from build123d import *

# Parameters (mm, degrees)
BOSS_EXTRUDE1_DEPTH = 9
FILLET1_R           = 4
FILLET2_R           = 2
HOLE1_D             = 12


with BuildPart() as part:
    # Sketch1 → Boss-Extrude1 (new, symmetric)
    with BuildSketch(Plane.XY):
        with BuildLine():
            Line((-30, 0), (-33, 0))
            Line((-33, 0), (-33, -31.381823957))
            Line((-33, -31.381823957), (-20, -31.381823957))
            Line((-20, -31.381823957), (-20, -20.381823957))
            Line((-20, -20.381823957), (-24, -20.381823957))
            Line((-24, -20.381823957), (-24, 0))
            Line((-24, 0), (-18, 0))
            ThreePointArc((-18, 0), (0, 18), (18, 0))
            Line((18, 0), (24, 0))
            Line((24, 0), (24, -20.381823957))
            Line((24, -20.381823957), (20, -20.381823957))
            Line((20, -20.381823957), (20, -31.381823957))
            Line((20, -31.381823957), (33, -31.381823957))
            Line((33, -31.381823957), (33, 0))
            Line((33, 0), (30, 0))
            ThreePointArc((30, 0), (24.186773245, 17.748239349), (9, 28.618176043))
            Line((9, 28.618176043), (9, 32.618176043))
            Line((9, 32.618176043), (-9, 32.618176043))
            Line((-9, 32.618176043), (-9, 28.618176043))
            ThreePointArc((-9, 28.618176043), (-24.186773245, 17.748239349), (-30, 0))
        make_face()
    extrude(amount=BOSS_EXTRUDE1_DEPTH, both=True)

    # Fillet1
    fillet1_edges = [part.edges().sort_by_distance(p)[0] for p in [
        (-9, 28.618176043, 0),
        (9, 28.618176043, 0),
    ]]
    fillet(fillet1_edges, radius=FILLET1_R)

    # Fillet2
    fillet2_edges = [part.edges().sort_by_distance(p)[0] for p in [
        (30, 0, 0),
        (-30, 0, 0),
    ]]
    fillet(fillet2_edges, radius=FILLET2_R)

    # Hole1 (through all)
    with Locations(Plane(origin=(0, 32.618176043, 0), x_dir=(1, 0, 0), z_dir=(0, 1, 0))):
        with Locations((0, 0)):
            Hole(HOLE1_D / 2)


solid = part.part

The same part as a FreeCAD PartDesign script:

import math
import FreeCAD as App
import Part
import Sketcher
Q = App.Units.Quantity


def edges_at(feature, points):
    """Names of the edges that pass closest to the given points."""
    edges = feature.Shape.Edges
    near = lambda p: min(range(len(edges)), key=lambda i: edges[i].distToShape(Part.Vertex(*p))[0])
    return sorted({f"Edge{near(p) + 1}" for p in points})

doc = App.newDocument("Part")
params = doc.addObject("Spreadsheet::Sheet", "Params")
for row, (alias, value) in enumerate([
    ("sketch1_radius", "18 mm"),
    ("sketch1_radius2", "30 mm"),
    ("sketch1_width", "3 mm"),
    ("sketch1_width2", "13 mm"),
    ("sketch1_width3", "4 mm"),
    ("pad1_length", "18 mm"),
    ("fillet_radius", "4 mm"),
    ("fillet2_radius", "2 mm"),
    ("sketch2_diameter", "12 mm"),
    ("hole_diameter", "12 mm"),
], start=1):
    params.set(f"A{row}", alias)
    params.set(f"B{row}", "=" + value)
    params.setAlias(f"B{row}", alias)

body = doc.addObject("PartDesign::Body", "Body")

sketch1 = body.newObject("Sketcher::SketchObject", "Sketch")
sketch1.AttachmentSupport = (doc.getObject("XY_Plane"), [""])
sketch1.MapMode = "FlatFace"
sketch1.addGeometry([
    Part.LineSegment(App.Vector(-30, 0, 0), App.Vector(-33, 0, 0)),
    Part.LineSegment(App.Vector(-33, 0, 0), App.Vector(-33, -31.4, 0)),
    Part.LineSegment(App.Vector(-33, -31.4, 0), App.Vector(-20, -31.4, 0)),
    Part.LineSegment(App.Vector(-20, -31.4, 0), App.Vector(-20, -20.4, 0)),
    Part.LineSegment(App.Vector(-20, -20.4, 0), App.Vector(-24, -20.4, 0)),
    Part.LineSegment(App.Vector(-24, -20.4, 0), App.Vector(-24, 0, 0)),
    Part.LineSegment(App.Vector(-24, 0, 0), App.Vector(-18, 0, 0)),
    Part.ArcOfCircle(Part.Circle(App.Vector(0, 0, 0), App.Vector(0, 0, 1), 18), math.radians(0), math.radians(180)),
    Part.LineSegment(App.Vector(18, 0, 0), App.Vector(24, 0, 0)),
    Part.LineSegment(App.Vector(24, 0, 0), App.Vector(24, -20.4, 0)),
    Part.LineSegment(App.Vector(24, -20.4, 0), App.Vector(20, -20.4, 0)),
    Part.LineSegment(App.Vector(20, -20.4, 0), App.Vector(20, -31.4, 0)),
    Part.LineSegment(App.Vector(20, -31.4, 0), App.Vector(33, -31.4, 0)),
    Part.LineSegment(App.Vector(33, -31.4, 0), App.Vector(33, 0, 0)),
    Part.LineSegment(App.Vector(33, 0, 0), App.Vector(30, 0, 0)),
    Part.ArcOfCircle(Part.Circle(App.Vector(0, 0, 0), App.Vector(0, 0, 1), 30), math.radians(0), math.radians(73)),
    Part.LineSegment(App.Vector(9, 28.6, 0), App.Vector(9, 32.6, 0)),
    Part.LineSegment(App.Vector(9, 32.6, 0), App.Vector(-9, 32.6, 0)),
    Part.LineSegment(App.Vector(-9, 32.6, 0), App.Vector(-9, 28.6, 0)),
    Part.ArcOfCircle(Part.Circle(App.Vector(0, 0, 0), App.Vector(0, 0, 1), 30), math.radians(107), math.radians(180)),
], False)
sketch1.addConstraint([
    Sketcher.Constraint("Coincident", 0, 2, 1, 1),
    Sketcher.Constraint("Coincident", 1, 2, 2, 1),
    Sketcher.Constraint("Coincident", 2, 2, 3, 1),
    Sketcher.Constraint("Coincident", 3, 2, 4, 1),
    Sketcher.Constraint("Coincident", 4, 2, 5, 1),
    Sketcher.Constraint("Coincident", 5, 2, 6, 1),
    Sketcher.Constraint("Coincident", 6, 2, 7, 2),
    Sketcher.Constraint("Coincident", 7, 1, 8, 1),
    Sketcher.Constraint("Coincident", 8, 2, 9, 1),
    Sketcher.Constraint("Coincident", 9, 2, 10, 1),
    Sketcher.Constraint("Coincident", 10, 2, 11, 1),
    Sketcher.Constraint("Coincident", 11, 2, 12, 1),
    Sketcher.Constraint("Coincident", 12, 2, 13, 1),
    Sketcher.Constraint("Coincident", 13, 2, 14, 1),
    Sketcher.Constraint("Coincident", 14, 2, 15, 1),
    Sketcher.Constraint("Coincident", 15, 2, 16, 1),
    Sketcher.Constraint("Coincident", 16, 2, 17, 1),
    Sketcher.Constraint("Coincident", 17, 2, 18, 1),
    Sketcher.Constraint("Coincident", 18, 2, 19, 1),
    Sketcher.Constraint("Coincident", 19, 2, 0, 1),
    Sketcher.Constraint("Horizontal", 0),
    Sketcher.Constraint("Vertical", 1),
    Sketcher.Constraint("Horizontal", 2),
    Sketcher.Constraint("Vertical", 3),
    Sketcher.Constraint("Horizontal", 4),
    Sketcher.Constraint("Vertical", 5),
    Sketcher.Constraint("Horizontal", 6),
    Sketcher.Constraint("Horizontal", 8),
    Sketcher.Constraint("Vertical", 9),
    Sketcher.Constraint("Horizontal", 10),
    Sketcher.Constraint("Vertical", 11),
    Sketcher.Constraint("Horizontal", 12),
    Sketcher.Constraint("Vertical", 13),
    Sketcher.Constraint("Horizontal", 14),
    Sketcher.Constraint("Vertical", 16),
    Sketcher.Constraint("Horizontal", 17),
    Sketcher.Constraint("Vertical", 18),
    Sketcher.Constraint("Coincident", 7, 3, -1, 1),
    Sketcher.Constraint("Coincident", 15, 3, -1, 1),
    Sketcher.Constraint("Coincident", 19, 3, -1, 1),
    Sketcher.Constraint("Equal", 15, 19),
    Sketcher.Constraint("Symmetric", 5, 2, 8, 2, -1, 1),
    Sketcher.Constraint("Symmetric", 0, 2, 13, 2, -1, 1),
    Sketcher.Constraint("Symmetric", 3, 2, 10, 2, -2),
    Sketcher.Constraint("PointOnObject", 0, 2, -1),
    Sketcher.Constraint("PointOnObject", 5, 2, -1),
    Sketcher.Constraint("Horizontal", 2, 2, 11, 2),
    Sketcher.Constraint("Horizontal", 15, 2, 18, 2),
    Sketcher.Constraint("Equal", 10, 16),
    Sketcher.Constraint("Radius", 7, Q("18 mm")),
    Sketcher.Constraint("Radius", 15, Q("30 mm")),
    Sketcher.Constraint("DistanceX", 0, 2, 0, 1, Q("3 mm")),
    Sketcher.Constraint("DistanceX", 2, 1, 2, 2, Q("13 mm")),
    Sketcher.Constraint("DistanceX", 4, 2, 4, 1, Q("4 mm")),
    Sketcher.Constraint("DistanceX", 17, 2, 17, 1, Q("18 mm")),
    Sketcher.Constraint("DistanceY", 3, 1, 3, 2, Q("11 mm")),
    Sketcher.Constraint("DistanceY", 1, 2, 1, 1, Q("31.381824 mm")),
])
sketch1.setExpression("Constraints[49]", "Params.sketch1_radius")
sketch1.setExpression("Constraints[50]", "Params.sketch1_radius2")
sketch1.setExpression("Constraints[51]", "Params.sketch1_width")
sketch1.setExpression("Constraints[52]", "Params.sketch1_width2")
sketch1.setExpression("Constraints[53]", "Params.sketch1_width3")
pad1 = body.newObject("PartDesign::Pad", "Pad")
pad1.Profile = sketch1
pad1.setExpression("Length", "Params.pad1_length")
pad1.Midplane = True
doc.recompute()

fillet = body.newObject("PartDesign::Fillet", "Fillet")
fillet.Base = (pad1, edges_at(pad1, [(-9, 28.618, 0), (9, 28.618, 0)]))
fillet.setExpression("Radius", "Params.fillet_radius")
doc.recompute()

fillet2 = body.newObject("PartDesign::Fillet", "Fillet001")
fillet2.Base = (fillet, edges_at(fillet, [(30, 0, 0), (-30, 0, 0)]))
fillet2.setExpression("Radius", "Params.fillet2_radius")

sketch2 = body.newObject("Sketcher::SketchObject", "Sketch001")
sketch2.AttachmentSupport = (doc.getObject("XZ_Plane"), [""])
sketch2.MapMode = "FlatFace"
sketch2.AttachmentOffset = App.Placement(App.Vector(0, 0, -32.618176), App.Rotation())
sketch2.addGeometry(Part.Circle(App.Vector(0, 0, 0), App.Vector(0, 0, 1), 6), False)
sketch2.addConstraint([
    Sketcher.Constraint("Coincident", 0, 3, -1, 1),
    Sketcher.Constraint("Diameter", 0, Q("12 mm")),
])
sketch2.setExpression("Constraints[1]", "Params.sketch2_diameter")
doc.recompute()
hole = body.newObject("PartDesign::Hole", "Hole")
hole.Profile = sketch2
hole.ThreadType = "None"
hole.setExpression("Diameter", "Params.hole_diameter")
hole.DepthType = "ThroughAll"
hole.Reversed = True

doc.recompute()
